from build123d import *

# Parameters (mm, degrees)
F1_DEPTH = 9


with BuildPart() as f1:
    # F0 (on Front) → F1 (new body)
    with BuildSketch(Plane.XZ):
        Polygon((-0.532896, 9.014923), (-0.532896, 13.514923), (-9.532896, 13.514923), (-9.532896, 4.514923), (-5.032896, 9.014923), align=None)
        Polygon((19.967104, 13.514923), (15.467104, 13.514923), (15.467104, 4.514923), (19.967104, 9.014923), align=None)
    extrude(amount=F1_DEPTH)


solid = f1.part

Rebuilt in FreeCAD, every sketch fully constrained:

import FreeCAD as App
import Part
import Sketcher
from FreeCAD import Vector
Q = App.Units.Quantity

doc = App.newDocument("Part")
body = doc.addObject("PartDesign::Body", "Body")
body.AllowCompound = True

# Sketch on XZ plane
sketch1 = doc.addObject("Sketcher::SketchObject", "Sketch")
body.addObject(sketch1)
sketch1.AttachmentSupport = (doc.XZ_Plane, [""])
sketch1.MapMode = "FlatFace"
sketch1.addGeometry([
    Part.LineSegment(Vector(-0.532896, 9.014923, 0), Vector(-0.532896, 13.514923, 0)),  # 0
    Part.LineSegment(Vector(-0.532896, 13.514923, 0), Vector(-9.532896, 13.514923, 0)),  # 1
    Part.LineSegment(Vector(-9.532896, 13.514923, 0), Vector(-9.532896, 4.514923, 0)),  # 2
    Part.LineSegment(Vector(-9.532896, 4.514923, 0), Vector(-5.032896, 9.014923, 0)),  # 3
    Part.LineSegment(Vector(-5.032896, 9.014923, 0), Vector(-0.532896, 9.014923, 0)),  # 4
    Part.LineSegment(Vector(19.967104, 13.514923, 0), Vector(15.467104, 13.514923, 0)),  # 5
    Part.LineSegment(Vector(15.467104, 13.514923, 0), Vector(15.467104, 4.514923, 0)),  # 6
    Part.LineSegment(Vector(15.467104, 4.514923, 0), Vector(19.967104, 9.014923, 0)),  # 7
    Part.LineSegment(Vector(19.967104, 9.014923, 0), Vector(19.967104, 13.514923, 0)),  # 8
], False)
sketch1.addConstraint([
    Sketcher.Constraint("Coincident", 0, 2, 1, 1),
    Sketcher.Constraint("Coincident", 1, 2, 2, 1),
    Sketcher.Constraint("Coincident", 2, 2, 3, 1),
    Sketcher.Constraint("Coincident", 3, 2, 4, 1),
    Sketcher.Constraint("Coincident", 4, 2, 0, 1),
    Sketcher.Constraint("Coincident", 5, 2, 6, 1),
    Sketcher.Constraint("Coincident", 6, 2, 7, 1),
    Sketcher.Constraint("Coincident", 7, 2, 8, 1),
    Sketcher.Constraint("Coincident", 8, 2, 5, 1),
    Sketcher.Constraint("Vertical", 0),
    Sketcher.Constraint("Horizontal", 1),
    Sketcher.Constraint("Vertical", 2),
    Sketcher.Constraint("Horizontal", 4),
    Sketcher.Constraint("Horizontal", 5),
    Sketcher.Constraint("Vertical", 6),
    Sketcher.Constraint("Vertical", 8),
    Sketcher.Constraint("Parallel", 3, 7),
    Sketcher.Constraint("Horizontal", 1, 2, 5, 2),
    Sketcher.Constraint("Horizontal", 2, 2, 6, 2),
    Sketcher.Constraint("Horizontal", 4, 2, 7, 2),
    Sketcher.Constraint("Equal", 4, 5),
    Sketcher.Constraint("Equal", 5, 0),
    Sketcher.Constraint("Equal", 1, 2),
    Sketcher.Constraint("DistanceX", 1, 2, 1, 1, Q("9 mm")),
    Sketcher.Constraint("DistanceX", 0, 2, 5, 2, Q("16 mm")),
    Sketcher.Constraint("DistanceX", 0, 2, -1, 1, Q("0.532896 mm")),
    Sketcher.Constraint("DistanceY", -1, 1, 0, 2, Q("13.514923 mm")),
])
pad1 = doc.addObject("PartDesign::Pad", "Pad")
body.addObject(pad1)
pad1.Profile = sketch1
pad1.Length = 9

doc.recompute()
